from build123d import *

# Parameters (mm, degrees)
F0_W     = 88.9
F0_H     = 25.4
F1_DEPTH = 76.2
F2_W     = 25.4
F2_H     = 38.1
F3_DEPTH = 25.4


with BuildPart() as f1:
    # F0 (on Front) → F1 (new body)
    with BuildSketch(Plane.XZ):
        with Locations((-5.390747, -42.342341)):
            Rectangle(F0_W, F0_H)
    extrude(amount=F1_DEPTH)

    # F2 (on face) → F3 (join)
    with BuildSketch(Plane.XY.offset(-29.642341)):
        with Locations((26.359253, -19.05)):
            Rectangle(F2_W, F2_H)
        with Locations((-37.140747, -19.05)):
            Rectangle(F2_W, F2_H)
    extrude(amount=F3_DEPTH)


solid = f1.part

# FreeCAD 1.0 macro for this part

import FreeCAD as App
import Part
import Sketcher

V = App.Vector
Q = App.Units.Quantity

doc = App.newDocument("Part")
body = doc.addObject("PartDesign::Body", "Body")

sketch1 = body.newObject("Sketcher::SketchObject", "Sketch")
sketch1.AttachmentSupport = (doc.getObject("XZ_Plane"), [""])
sketch1.MapMode = "FlatFace"
sketch1.addGeometry(Part.LineSegment(V(-50, -30, 0), V(-50, -55, 0)), False)
sketch1.addGeometry(Part.LineSegment(V(-50, -55, 0), V(39, -55, 0)), False)
sketch1.addGeometry(Part.LineSegment(V(39, -55, 0), V(39, -30, 0)), False)
sketch1.addGeometry(Part.LineSegment(V(39, -30, 0), V(-50, -30, 0)), False)
sketch1.addConstraint(Sketcher.Constraint("Coincident", 0, 2, 1, 1))
sketch1.addConstraint(Sketcher.Constraint("Coincident", 1, 2, 2, 1))
sketch1.addConstraint(Sketcher.Constraint("Coincident", 2, 2, 3, 1))
sketch1.addConstraint(Sketcher.Constraint("Coincident", 3, 2, 0, 1))
sketch1.addConstraint(Sketcher.Constraint("Vertical", 0))
sketch1.addConstraint(Sketcher.Constraint("Horizontal", 1))
sketch1.addConstraint(Sketcher.Constraint("Vertical", 2))
sketch1.addConstraint(Sketcher.Constraint("Horizontal", 3))
sketch1.addConstraint(Sketcher.Constraint("DistanceY", 0, 2, 0, 1, Q("1 in")))
sketch1.addConstraint(Sketcher.Constraint("DistanceX", 1, 1, 1, 2, Q("3.5 in")))
sketch1.addConstraint(Sketcher.Constraint("DistanceY", 0, 2, -1, 1, 55.042341))
sketch1.addConstraint(Sketcher.Constraint("DistanceX", 0, 2, -1, 1, 49.840747))
pad1 = body.newObject("PartDesign::Pad", "Pad")
pad1.Profile = sketch1
pad1.Length = Q("3 in")

sketch2 = body.newObject("Sketcher::SketchObject", "Sketch001")
sketch2.AttachmentSupport = (doc.getObject("XY_Plane"), [""])
sketch2.MapMode = "FlatFace"
sketch2.AttachmentOffset = App.Placement(V(0, 0, -29.642341), App.Rotation())
sketch2.addGeometry(Part.LineSegment(V(14, 0, 0), V(14, -38, 0)), False)
sketch2.addGeometry(Part.LineSegment(V(14, -38, 0), V(39, -38, 0)), False)
sketch2.addGeometry(Part.LineSegment(V(39, -38, 0), V(39, 0, 0)), False)
sketch2.addGeometry(Part.LineSegment(V(39, 0, 0), V(14, 0, 0)), False)
sketch2.addGeometry(Part.LineSegment(V(-50, 0, 0), V(-50, -38, 0)), False)
sketch2.addGeometry(Part.LineSegment(V(-50, -38, 0), V(-24, -38, 0)), False)
sketch2.addGeometry(Part.LineSegment(V(-24, -38, 0), V(-24, 0, 0)), False)
sketch2.addGeometry(Part.LineSegment(V(-24, 0, 0), V(-50, 0, 0)), False)
sketch2.addConstraint(Sketcher.Constraint("Coincident", 0, 2, 1, 1))
sketch2.addConstraint(Sketcher.Constraint("Coincident", 1, 2, 2, 1))
sketch2.addConstraint(Sketcher.Constraint("Coincident", 2, 2, 3, 1))
sketch2.addConstraint(Sketcher.Constraint("Coincident", 3, 2, 0, 1))
sketch2.addConstraint(Sketcher.Constraint("Coincident", 4, 2, 5, 1))
sketch2.addConstraint(Sketcher.Constraint("Coincident", 5, 2, 6, 1))
sketch2.addConstraint(Sketcher.Constraint("Coincident", 6, 2, 7, 1))
sketch2.addConstraint(Sketcher.Constraint("Coincident", 7, 2, 4, 1))
sketch2.addConstraint(Sketcher.Constraint("Vertical", 0))
sketch2.addConstraint(Sketcher.Constraint("Horizontal", 1))
sketch2.addConstraint(Sketcher.Constraint("Vertical", 2))
sketch2.addConstraint(Sketcher.Constraint("Horizontal", 3))
sketch2.addConstraint(Sketcher.Constraint("Vertical", 4))
sketch2.addConstraint(Sketcher.Constraint("Horizontal", 5))
sketch2.addConstraint(Sketcher.Constraint("Vertical", 6))
sketch2.addConstraint(Sketcher.Constraint("Horizontal", 7))
sketch2.addConstraint(Sketcher.Constraint("PointOnObject", 2, 2, -1))
sketch2.addConstraint(Sketcher.Constraint("PointOnObject", 6, 2, -1))
sketch2.addConstraint(Sketcher.Constraint("Horizontal", 1, 2, 4, 2))
sketch2.addConstraint(Sketcher.Constraint("Equal", 3, 5))
sketch2.addConstraint(Sketcher.Constraint("DistanceX", 1, 1, 1, 2, Q("1 in")))
sketch2.addConstraint(Sketcher.Constraint("DistanceY", 0, 2, 0, 1, Q("1.5 in")))
sketch2.addConstraint(Sketcher.Constraint("DistanceX", 4, 2, 0, 2, Q("2.5 in")))
sketch2.addConstraint(Sketcher.Constraint("DistanceX", -1, 1, 0, 2, 13.659253))
pad2 = body.newObject("PartDesign::Pad", "Pad001")
pad2.Profile = sketch2
pad2.Length = Q("1 in")

doc.recompute()
